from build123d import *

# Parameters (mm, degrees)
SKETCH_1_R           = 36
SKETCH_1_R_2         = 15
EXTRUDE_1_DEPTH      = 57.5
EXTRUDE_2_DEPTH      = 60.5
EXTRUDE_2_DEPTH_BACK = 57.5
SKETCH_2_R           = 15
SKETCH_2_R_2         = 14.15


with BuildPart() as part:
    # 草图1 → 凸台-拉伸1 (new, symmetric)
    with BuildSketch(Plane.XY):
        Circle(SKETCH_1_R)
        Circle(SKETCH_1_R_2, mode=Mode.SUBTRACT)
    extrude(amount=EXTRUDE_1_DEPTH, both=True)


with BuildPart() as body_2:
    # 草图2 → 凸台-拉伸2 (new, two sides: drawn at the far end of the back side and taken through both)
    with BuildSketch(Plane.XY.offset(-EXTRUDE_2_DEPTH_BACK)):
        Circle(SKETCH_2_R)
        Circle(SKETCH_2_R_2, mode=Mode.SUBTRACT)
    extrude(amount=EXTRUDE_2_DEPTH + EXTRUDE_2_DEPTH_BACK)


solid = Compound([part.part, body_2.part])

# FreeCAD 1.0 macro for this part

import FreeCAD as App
import Part
import Sketcher

doc = App.newDocument("Part")
body = doc.addObject("PartDesign::Body", "Body")

sketch1 = body.newObject("Sketcher::SketchObject", "Sketch")
sketch1.AttachmentSupport = (doc.getObject("XY_Plane"), [""])
sketch1.MapMode = "FlatFace"
sketch1.addGeometry([
    Part.Circle(App.Vector(0, 0, 0), App.Vector(0, 0, 1), 36),
    Part.Circle(App.Vector(0, 0, 0), App.Vector(0, 0, 1), 15),
], False)
sketch1.addConstraint([
    Sketcher.Constraint("Coincident", 0, 3, -1, 1),
    Sketcher.Constraint("Coincident", 1, 3, -1, 1),
    Sketcher.Constraint("Diameter", 0, 72.0),
    Sketcher.Constraint("Diameter", 1, 30.0),
])
pad1 = body.newObject("PartDesign::Pad", "Pad")
pad1.Profile = sketch1
pad1.Length = 115
pad1.Midplane = True
body2 = doc.addObject("PartDesign::Body", "Body001")

sketch2 = body2.newObject("Sketcher::SketchObject", "Sketch001")
sketch2.AttachmentSupport = (doc.getObject("XY_Plane001"), [""])
sketch2.MapMode = "FlatFace"
sketch2.addGeometry([
    Part.Circle(App.Vector(0, 0, 0), App.Vector(0, 0, 1), 15),
    Part.Circle(App.Vector(0, 0, 0), App.Vector(0, 0, 1), 14.15),
], False)
sketch2.addConstraint([
    Sketcher.Constraint("Coincident", 0, 3, -1, 1),
    Sketcher.Constraint("Coincident", 1, 3, -1, 1),
    Sketcher.Constraint("Diameter", 0, 30.0),
    Sketcher.Constraint("Diameter", 1, 28.3),
])
pad2 = body2.newObject("PartDesign::Pad", "Pad001")
pad2.Profile = sketch2
pad2.Type = "TwoLengths"
pad2.Length = 60.5
pad2.Length2 = 57.5

doc.recompute()
